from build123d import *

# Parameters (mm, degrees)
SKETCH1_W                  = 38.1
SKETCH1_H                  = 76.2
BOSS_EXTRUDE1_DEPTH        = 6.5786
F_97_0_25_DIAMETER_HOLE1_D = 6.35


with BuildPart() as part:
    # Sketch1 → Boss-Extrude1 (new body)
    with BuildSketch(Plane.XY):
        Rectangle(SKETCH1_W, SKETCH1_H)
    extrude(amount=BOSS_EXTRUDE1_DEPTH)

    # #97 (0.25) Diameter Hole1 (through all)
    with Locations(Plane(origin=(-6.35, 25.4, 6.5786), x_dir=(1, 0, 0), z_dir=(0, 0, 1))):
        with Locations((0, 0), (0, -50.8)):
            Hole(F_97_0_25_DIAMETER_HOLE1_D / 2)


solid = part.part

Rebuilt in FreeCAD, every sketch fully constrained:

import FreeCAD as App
import Part
import Sketcher
from FreeCAD import Vector
Q = App.Units.Quantity


def add_polygon(sketch, points):
    """Adds a closed chain of lines whose ends are joined by coincident constraints."""
    first, n = sketch.GeometryCount, len(points)
    for a, b in zip(points, points[1:] + points[:1]):
        sketch.addGeometry(Part.LineSegment(App.Vector(*a, 0), App.Vector(*b, 0)), False)
    for i in range(n):
        sketch.addConstraint(Sketcher.Constraint("Coincident", first + i, 2, first + (i + 1) % n, 1))

doc = App.newDocument("Part")
body = doc.addObject("PartDesign::Body", "Body")

# Sketch on XY plane
sketch1 = body.newObject("Sketcher::SketchObject", "Sketch")
sketch1.AttachmentSupport = (doc.getObject("XY_Plane"), [""])
sketch1.MapMode = "FlatFace"
add_polygon(sketch1, [(-19.05, 38.1), (-19.05, -38.1), (19.05, -38.1), (19.05, 38.1)])  # lines 0-3
sketch1.addConstraint(Sketcher.Constraint("Vertical", 0))
sketch1.addConstraint(Sketcher.Constraint("Horizontal", 1))
sketch1.addConstraint(Sketcher.Constraint("Vertical", 2))
sketch1.addConstraint(Sketcher.Constraint("Horizontal", 3))
sketch1.addConstraint(Sketcher.Constraint("Symmetric", 0, 2, 2, 2, -1, 1))
sketch1.addConstraint(Sketcher.Constraint("DistanceY", 0, 2, 0, 1, Q("3 in")))
sketch1.addConstraint(Sketcher.Constraint("DistanceX", 1, 1, 1, 2, Q("1.5 in")))
pad1 = body.newObject("PartDesign::Pad", "Pad")
pad1.Profile = sketch1
pad1.Length = Q("0.259 in")

# Sketch on XY plane
sketch2 = body.newObject("Sketcher::SketchObject", "Sketch001")
sketch2.AttachmentSupport = (doc.getObject("XY_Plane"), [""])
sketch2.MapMode = "FlatFace"
sketch2.AttachmentOffset = App.Placement(Vector(0, 0, 0.259 * 25.4), App.Rotation())
sketch2.addGeometry(Part.Circle(Vector(-6.35, 25.4, 0), Vector(0, 0, 1), 3.175), False)
sketch2.addGeometry(Part.Circle(Vector(-6.35, -25.4, 0), Vector(0, 0, 1), 3.175), False)
sketch2.addConstraint(Sketcher.Constraint("Equal", 0, 1))
sketch2.addConstraint(Sketcher.Constraint("Symmetric", 0, 3, 1, 3, -1))
sketch2.addConstraint(Sketcher.Constraint("Diameter", 0, Q("0.25 in")))
sketch2.addConstraint(Sketcher.Constraint("DistanceY", -1, 1, 0, 3, Q("1 in")))
sketch2.addConstraint(Sketcher.Constraint("DistanceX", 0, 3, -1, 1, Q("0.25 in")))
doc.recompute()
hole = body.newObject("PartDesign::Hole", "Hole")
hole.Profile = sketch2
hole.ThreadType = "None"
hole.Diameter = Q("0.25 in")
hole.DepthType = "ThroughAll"

doc.recompute()
